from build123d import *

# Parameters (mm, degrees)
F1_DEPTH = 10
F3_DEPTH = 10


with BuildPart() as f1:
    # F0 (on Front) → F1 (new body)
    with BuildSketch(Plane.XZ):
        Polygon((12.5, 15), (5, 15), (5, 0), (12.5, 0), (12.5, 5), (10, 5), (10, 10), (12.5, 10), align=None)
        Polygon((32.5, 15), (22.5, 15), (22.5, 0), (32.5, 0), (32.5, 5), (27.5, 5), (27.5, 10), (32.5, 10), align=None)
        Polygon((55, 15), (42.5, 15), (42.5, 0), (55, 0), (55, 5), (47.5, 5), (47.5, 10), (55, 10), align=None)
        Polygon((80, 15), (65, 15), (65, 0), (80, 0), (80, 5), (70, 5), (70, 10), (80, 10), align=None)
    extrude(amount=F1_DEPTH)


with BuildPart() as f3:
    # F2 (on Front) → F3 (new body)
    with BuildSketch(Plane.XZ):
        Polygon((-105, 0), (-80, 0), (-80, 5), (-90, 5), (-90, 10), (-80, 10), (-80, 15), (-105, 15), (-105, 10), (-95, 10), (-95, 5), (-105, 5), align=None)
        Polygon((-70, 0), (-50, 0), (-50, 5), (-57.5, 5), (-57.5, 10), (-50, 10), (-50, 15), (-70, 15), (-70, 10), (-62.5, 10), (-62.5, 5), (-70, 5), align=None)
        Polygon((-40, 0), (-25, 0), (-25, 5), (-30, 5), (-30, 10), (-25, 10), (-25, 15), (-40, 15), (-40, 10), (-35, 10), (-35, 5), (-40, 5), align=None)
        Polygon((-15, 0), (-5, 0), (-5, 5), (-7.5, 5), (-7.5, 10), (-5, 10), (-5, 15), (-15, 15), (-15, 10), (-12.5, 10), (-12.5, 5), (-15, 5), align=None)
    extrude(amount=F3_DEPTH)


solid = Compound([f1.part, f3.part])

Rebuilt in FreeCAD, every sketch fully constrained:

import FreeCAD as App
import Part
import Sketcher
from FreeCAD import Vector


def add_polygon(sketch, points):
    """Adds a closed chain of lines whose ends are joined by coincident constraints."""
    first, n = sketch.GeometryCount, len(points)
    for a, b in zip(points, points[1:] + points[:1]):
        sketch.addGeometry(Part.LineSegment(App.Vector(*a, 0), App.Vector(*b, 0)), False)
    for i in range(n):
        sketch.addConstraint(Sketcher.Constraint("Coincident", first + i, 2, first + (i + 1) % n, 1))

doc = App.newDocument("Part")
body = doc.addObject("PartDesign::Body", "Body")
body.AllowCompound = True

sketch1 = doc.addObject("Sketcher::SketchObject", "Sketch")
body.addObject(sketch1)
sketch1.AttachmentSupport = (doc.XZ_Plane, [""])
sketch1.MapMode = "FlatFace"
add_polygon(sketch1, [(12.5, 15), (5, 15), (5, 0), (12.5, 0), (12.5, 5), (10, 5), (10, 10), (12.5, 10)])
add_polygon(sketch1, [(32.5, 15), (22.5, 15), (22.5, 0), (32.5, 0), (32.5, 5), (27.5, 5), (27.5, 10), (32.5, 10)])
add_polygon(sketch1, [(55, 15), (42.5, 15), (42.5, 0), (55, 0), (55, 5), (47.5, 5), (47.5, 10), (55, 10)])
add_polygon(sketch1, [(80, 15), (65, 15), (65, 0), (80, 0), (80, 5), (70, 5), (70, 10), (80, 10)])
sketch1.addConstraint([
    Sketcher.Constraint("Horizontal", 0),
    Sketcher.Constraint("Vertical", 1),
    Sketcher.Constraint("Horizontal", 2),
    Sketcher.Constraint("Vertical", 3),
    Sketcher.Constraint("Horizontal", 4),
    Sketcher.Constraint("Vertical", 5),
    Sketcher.Constraint("Horizontal", 6),
    Sketcher.Constraint("Vertical", 7),
    Sketcher.Constraint("Horizontal", 8),
    Sketcher.Constraint("Vertical", 9),
    Sketcher.Constraint("Horizontal", 10),
    Sketcher.Constraint("Vertical", 11),
    Sketcher.Constraint("Horizontal", 12),
    Sketcher.Constraint("Vertical", 13),
    Sketcher.Constraint("Horizontal", 14),
    Sketcher.Constraint("Vertical", 15),
    Sketcher.Constraint("Horizontal", 16),
    Sketcher.Constraint("Vertical", 17),
    Sketcher.Constraint("Horizontal", 18),
    Sketcher.Constraint("Vertical", 19),
    Sketcher.Constraint("Horizontal", 20),
    Sketcher.Constraint("Vertical", 21),
    Sketcher.Constraint("Horizontal", 22),
    Sketcher.Constraint("Vertical", 23),
    Sketcher.Constraint("Horizontal", 24),
    Sketcher.Constraint("Vertical", 25),
    Sketcher.Constraint("Horizontal", 26),
    Sketcher.Constraint("Vertical", 27),
    Sketcher.Constraint("Horizontal", 28),
    Sketcher.Constraint("Vertical", 29),
    Sketcher.Constraint("Horizontal", 30),
    Sketcher.Constraint("Vertical", 31),
    Sketcher.Constraint("PointOnObject", 1, 2, -1),
    Sketcher.Constraint("PointOnObject", 9, 2, -1),
    Sketcher.Constraint("PointOnObject", 17, 2, -1),
    Sketcher.Constraint("PointOnObject", 25, 2, -1),
    Sketcher.Constraint("Horizontal", 7, 2, 8, 2),
    Sketcher.Constraint("Horizontal", 4, 2, 11, 2),
    Sketcher.Constraint("Horizontal", 6, 2, 13, 2),
    Sketcher.Constraint("Horizontal", 15, 2, 16, 2),
    Sketcher.Constraint("Horizontal", 12, 2, 19, 2),
    Sketcher.Constraint("Horizontal", 14, 2, 21, 2),
    Sketcher.Constraint("Horizontal", 23, 2, 24, 2),
    Sketcher.Constraint("Horizontal", 20, 2, 27, 2),
    Sketcher.Constraint("Horizontal", 22, 2, 29, 2),
    Sketcher.Constraint("Vertical", 3, 2, 6, 2),
    Sketcher.Constraint("Vertical", 11, 2, 14, 2),
    Sketcher.Constraint("Vertical", 19, 2, 22, 2),
    Sketcher.Constraint("Vertical", 27, 2, 30, 2),
    Sketcher.Constraint("Equal", 2, 20),
    Sketcher.Constraint("Equal", 10, 28),
    Sketcher.Constraint("Equal", 26, 1),
    Sketcher.Constraint("Equal", 14, 3),
    Sketcher.Constraint("Equal", 3, 5),
    Sketcher.Constraint("Equal", 5, 7),
    Sketcher.Constraint("DistanceX", 8, 2, 8, 1, 10.0),
    Sketcher.Constraint("DistanceX", 12, 2, 12, 1, 5.0),
    Sketcher.Constraint("DistanceX", 0, 2, 0, 1, 7.5),
    Sketcher.Constraint("DistanceX", 4, 2, 4, 1, 2.5),
    Sketcher.Constraint("DistanceX", 16, 2, 16, 1, 12.5),
    Sketcher.Constraint("DistanceX", -1, 1, 0, 2, 5.0),
    Sketcher.Constraint("DistanceX", -1, 1, 18, 2, 55.0),
    Sketcher.Constraint("DistanceX", -1, 1, 24, 2, 65.0),
    Sketcher.Constraint("DistanceX", 7, 2, 8, 2, 10.0),
])
pad1 = doc.addObject("PartDesign::Pad", "Pad")
body.addObject(pad1)
pad1.Profile = sketch1
pad1.Length = 10
body2 = doc.addObject("PartDesign::Body", "Body001")
body2.AllowCompound = True

sketch2 = doc.addObject("Sketcher::SketchObject", "Sketch001")
body2.addObject(sketch2)
sketch2.AttachmentSupport = (doc.getObject("XZ_Plane001"), [""])
sketch2.MapMode = "FlatFace"
add_polygon(sketch2, [(-105, 0), (-80, 0), (-80, 5), (-90, 5), (-90, 10), (-80, 10), (-80, 15), (-105, 15), (-105, 10), (-95, 10), (-95, 5), (-105, 5)])
add_polygon(sketch2, [(-70, 0), (-50, 0), (-50, 5), (-57.5, 5), (-57.5, 10), (-50, 10), (-50, 15), (-70, 15), (-70, 10), (-62.5, 10), (-62.5, 5), (-70, 5)])
add_polygon(sketch2, [(-40, 0), (-25, 0), (-25, 5), (-30, 5), (-30, 10), (-25, 10), (-25, 15), (-40, 15), (-40, 10), (-35, 10), (-35, 5), (-40, 5)])
add_polygon(sketch2, [(-15, 0), (-5, 0), (-5, 5), (-7.5, 5), (-7.5, 10), (-5, 10), (-5, 15), (-15, 15), (-15, 10), (-12.5, 10), (-12.5, 5), (-15, 5)])
sketch2.addConstraint([
    Sketcher.Constraint("Horizontal", 0),
    Sketcher.Constraint("Vertical", 1),
    Sketcher.Constraint("Horizontal", 2),
    Sketcher.Constraint("Vertical", 3),
    Sketcher.Constraint("Horizontal", 4),
    Sketcher.Constraint("Vertical", 5),
    Sketcher.Constraint("Horizontal", 6),
    Sketcher.Constraint("Vertical", 7),
    Sketcher.Constraint("Horizontal", 8),
    Sketcher.Constraint("Vertical", 9),
    Sketcher.Constraint("Horizontal", 10),
    Sketcher.Constraint("Vertical", 11),
    Sketcher.Constraint("Horizontal", 12),
    Sketcher.Constraint("Vertical", 13),
    Sketcher.Constraint("Horizontal", 14),
    Sketcher.Constraint("Vertical", 15),
    Sketcher.Constraint("Horizontal", 16),
    Sketcher.Constraint("Vertical", 17),
    Sketcher.Constraint("Horizontal", 18),
    Sketcher.Constraint("Vertical", 19),
    Sketcher.Constraint("Horizontal", 20),
    Sketcher.Constraint("Vertical", 21),
    Sketcher.Constraint("Horizontal", 22),
    Sketcher.Constraint("Vertical", 23),
    Sketcher.Constraint("Horizontal", 24),
    Sketcher.Constraint("Vertical", 25),
    Sketcher.Constraint("Horizontal", 26),
    Sketcher.Constraint("Vertical", 27),
    Sketcher.Constraint("Horizontal", 28),
    Sketcher.Constraint("Vertical", 29),
    Sketcher.Constraint("Horizontal", 30),
    Sketcher.Constraint("Vertical", 31),
    Sketcher.Constraint("Horizontal", 32),
    Sketcher.Constraint("Vertical", 33),
    Sketcher.Constraint("Horizontal", 34),
    Sketcher.Constraint("Vertical", 35),
    Sketcher.Constraint("Horizontal", 36),
    Sketcher.Constraint("Vertical", 37),
    Sketcher.Constraint("Horizontal", 38),
    Sketcher.Constraint("Vertical", 39),
    Sketcher.Constraint("Horizontal", 40),
    Sketcher.Constraint("Vertical", 41),
    Sketcher.Constraint("Horizontal", 42),
    Sketcher.Constraint("Vertical", 43),
    Sketcher.Constraint("Horizontal", 44),
    Sketcher.Constraint("Vertical", 45),
    Sketcher.Constraint("Horizontal", 46),
    Sketcher.Constraint("Vertical", 47),
    Sketcher.Constraint("PointOnObject", 0, 2, -1),
    Sketcher.Constraint("PointOnObject", 12, 2, -1),
    Sketcher.Constraint("PointOnObject", 24, 2, -1),
    Sketcher.Constraint("PointOnObject", 36, 2, -1),
    Sketcher.Constraint("Horizontal", 4, 2, 7, 2),
    Sketcher.Constraint("Horizontal", 2, 2, 9, 2),
    Sketcher.Constraint("Horizontal", 10, 2, 13, 2),
    Sketcher.Constraint("Horizontal", 8, 2, 15, 2),
    Sketcher.Constraint("Horizontal", 6, 2, 17, 2),
    Sketcher.Constraint("Horizontal", 16, 2, 19, 2),
    Sketcher.Constraint("Horizontal", 14, 2, 21, 2),
    Sketcher.Constraint("Horizontal", 22, 2, 25, 2),
    Sketcher.Constraint("Horizontal", 20, 2, 27, 2),
    Sketcher.Constraint("Horizontal", 18, 2, 29, 2),
    Sketcher.Constraint("Horizontal", 28, 2, 31, 2),
    Sketcher.Constraint("Horizontal", 26, 2, 33, 2),
    Sketcher.Constraint("Horizontal", 34, 2, 37, 2),
    Sketcher.Constraint("Horizontal", 32, 2, 39, 2),
    Sketcher.Constraint("Horizontal", 30, 2, 41, 2),
    Sketcher.Constraint("Horizontal", 40, 2, 43, 2),
    Sketcher.Constraint("Horizontal", 38, 2, 45, 2),
    Sketcher.Constraint("Vertical", 1, 2, 4, 2),
    Sketcher.Constraint("Vertical", 7, 2, 10, 2),
    Sketcher.Constraint("Vertical", 13, 2, 16, 2),
    Sketcher.Constraint("Vertical", 19, 2, 22, 2),
    Sketcher.Constraint("Vertical", 25, 2, 28, 2),
    Sketcher.Constraint("Vertical", 31, 2, 34, 2),
    Sketcher.Constraint("Vertical", 37, 2, 40, 2),
    Sketcher.Constraint("Vertical", 43, 2, 46, 2),
    Sketcher.Constraint("Equal", 4, 8),
    Sketcher.Constraint("Equal", 16, 20),
    Sketcher.Constraint("Equal", 28, 32),
    Sketcher.Constraint("Equal", 10, 36),
    Sketcher.Constraint("Equal", 40, 44),
    Sketcher.Constraint("Equal", 34, 1),
    Sketcher.Constraint("Equal", 1, 3),
    Sketcher.Constraint("Equal", 3, 5),
    Sketcher.Constraint("DistanceX", 0, 1, 0, 2, 25.0),
    Sketcher.Constraint("DistanceX", 2, 2, 2, 1, 10.0),
    Sketcher.Constraint("DistanceX", 12, 1, 12, 2, 20.0),
    Sketcher.Constraint("DistanceX", 24, 1, 24, 2, 15.0),
    Sketcher.Constraint("DistanceX", 26, 2, 26, 1, 5.0),
    Sketcher.Constraint("DistanceX", 14, 2, 14, 1, 7.5),
    Sketcher.Constraint("DistanceX", 38, 2, 38, 1, 2.5),
    Sketcher.Constraint("DistanceX", 0, 2, -1, 1, 80.0),
    Sketcher.Constraint("DistanceX", 12, 2, -1, 1, 50.0),
    Sketcher.Constraint("DistanceX", 24, 2, -1, 1, 25.0),
    Sketcher.Constraint("DistanceX", 36, 2, -1, 1, 5.0),
])
pad2 = doc.addObject("PartDesign::Pad", "Pad001")
body2.addObject(pad2)
pad2.Profile = sketch2
pad2.Length = 10

doc.recompute()
